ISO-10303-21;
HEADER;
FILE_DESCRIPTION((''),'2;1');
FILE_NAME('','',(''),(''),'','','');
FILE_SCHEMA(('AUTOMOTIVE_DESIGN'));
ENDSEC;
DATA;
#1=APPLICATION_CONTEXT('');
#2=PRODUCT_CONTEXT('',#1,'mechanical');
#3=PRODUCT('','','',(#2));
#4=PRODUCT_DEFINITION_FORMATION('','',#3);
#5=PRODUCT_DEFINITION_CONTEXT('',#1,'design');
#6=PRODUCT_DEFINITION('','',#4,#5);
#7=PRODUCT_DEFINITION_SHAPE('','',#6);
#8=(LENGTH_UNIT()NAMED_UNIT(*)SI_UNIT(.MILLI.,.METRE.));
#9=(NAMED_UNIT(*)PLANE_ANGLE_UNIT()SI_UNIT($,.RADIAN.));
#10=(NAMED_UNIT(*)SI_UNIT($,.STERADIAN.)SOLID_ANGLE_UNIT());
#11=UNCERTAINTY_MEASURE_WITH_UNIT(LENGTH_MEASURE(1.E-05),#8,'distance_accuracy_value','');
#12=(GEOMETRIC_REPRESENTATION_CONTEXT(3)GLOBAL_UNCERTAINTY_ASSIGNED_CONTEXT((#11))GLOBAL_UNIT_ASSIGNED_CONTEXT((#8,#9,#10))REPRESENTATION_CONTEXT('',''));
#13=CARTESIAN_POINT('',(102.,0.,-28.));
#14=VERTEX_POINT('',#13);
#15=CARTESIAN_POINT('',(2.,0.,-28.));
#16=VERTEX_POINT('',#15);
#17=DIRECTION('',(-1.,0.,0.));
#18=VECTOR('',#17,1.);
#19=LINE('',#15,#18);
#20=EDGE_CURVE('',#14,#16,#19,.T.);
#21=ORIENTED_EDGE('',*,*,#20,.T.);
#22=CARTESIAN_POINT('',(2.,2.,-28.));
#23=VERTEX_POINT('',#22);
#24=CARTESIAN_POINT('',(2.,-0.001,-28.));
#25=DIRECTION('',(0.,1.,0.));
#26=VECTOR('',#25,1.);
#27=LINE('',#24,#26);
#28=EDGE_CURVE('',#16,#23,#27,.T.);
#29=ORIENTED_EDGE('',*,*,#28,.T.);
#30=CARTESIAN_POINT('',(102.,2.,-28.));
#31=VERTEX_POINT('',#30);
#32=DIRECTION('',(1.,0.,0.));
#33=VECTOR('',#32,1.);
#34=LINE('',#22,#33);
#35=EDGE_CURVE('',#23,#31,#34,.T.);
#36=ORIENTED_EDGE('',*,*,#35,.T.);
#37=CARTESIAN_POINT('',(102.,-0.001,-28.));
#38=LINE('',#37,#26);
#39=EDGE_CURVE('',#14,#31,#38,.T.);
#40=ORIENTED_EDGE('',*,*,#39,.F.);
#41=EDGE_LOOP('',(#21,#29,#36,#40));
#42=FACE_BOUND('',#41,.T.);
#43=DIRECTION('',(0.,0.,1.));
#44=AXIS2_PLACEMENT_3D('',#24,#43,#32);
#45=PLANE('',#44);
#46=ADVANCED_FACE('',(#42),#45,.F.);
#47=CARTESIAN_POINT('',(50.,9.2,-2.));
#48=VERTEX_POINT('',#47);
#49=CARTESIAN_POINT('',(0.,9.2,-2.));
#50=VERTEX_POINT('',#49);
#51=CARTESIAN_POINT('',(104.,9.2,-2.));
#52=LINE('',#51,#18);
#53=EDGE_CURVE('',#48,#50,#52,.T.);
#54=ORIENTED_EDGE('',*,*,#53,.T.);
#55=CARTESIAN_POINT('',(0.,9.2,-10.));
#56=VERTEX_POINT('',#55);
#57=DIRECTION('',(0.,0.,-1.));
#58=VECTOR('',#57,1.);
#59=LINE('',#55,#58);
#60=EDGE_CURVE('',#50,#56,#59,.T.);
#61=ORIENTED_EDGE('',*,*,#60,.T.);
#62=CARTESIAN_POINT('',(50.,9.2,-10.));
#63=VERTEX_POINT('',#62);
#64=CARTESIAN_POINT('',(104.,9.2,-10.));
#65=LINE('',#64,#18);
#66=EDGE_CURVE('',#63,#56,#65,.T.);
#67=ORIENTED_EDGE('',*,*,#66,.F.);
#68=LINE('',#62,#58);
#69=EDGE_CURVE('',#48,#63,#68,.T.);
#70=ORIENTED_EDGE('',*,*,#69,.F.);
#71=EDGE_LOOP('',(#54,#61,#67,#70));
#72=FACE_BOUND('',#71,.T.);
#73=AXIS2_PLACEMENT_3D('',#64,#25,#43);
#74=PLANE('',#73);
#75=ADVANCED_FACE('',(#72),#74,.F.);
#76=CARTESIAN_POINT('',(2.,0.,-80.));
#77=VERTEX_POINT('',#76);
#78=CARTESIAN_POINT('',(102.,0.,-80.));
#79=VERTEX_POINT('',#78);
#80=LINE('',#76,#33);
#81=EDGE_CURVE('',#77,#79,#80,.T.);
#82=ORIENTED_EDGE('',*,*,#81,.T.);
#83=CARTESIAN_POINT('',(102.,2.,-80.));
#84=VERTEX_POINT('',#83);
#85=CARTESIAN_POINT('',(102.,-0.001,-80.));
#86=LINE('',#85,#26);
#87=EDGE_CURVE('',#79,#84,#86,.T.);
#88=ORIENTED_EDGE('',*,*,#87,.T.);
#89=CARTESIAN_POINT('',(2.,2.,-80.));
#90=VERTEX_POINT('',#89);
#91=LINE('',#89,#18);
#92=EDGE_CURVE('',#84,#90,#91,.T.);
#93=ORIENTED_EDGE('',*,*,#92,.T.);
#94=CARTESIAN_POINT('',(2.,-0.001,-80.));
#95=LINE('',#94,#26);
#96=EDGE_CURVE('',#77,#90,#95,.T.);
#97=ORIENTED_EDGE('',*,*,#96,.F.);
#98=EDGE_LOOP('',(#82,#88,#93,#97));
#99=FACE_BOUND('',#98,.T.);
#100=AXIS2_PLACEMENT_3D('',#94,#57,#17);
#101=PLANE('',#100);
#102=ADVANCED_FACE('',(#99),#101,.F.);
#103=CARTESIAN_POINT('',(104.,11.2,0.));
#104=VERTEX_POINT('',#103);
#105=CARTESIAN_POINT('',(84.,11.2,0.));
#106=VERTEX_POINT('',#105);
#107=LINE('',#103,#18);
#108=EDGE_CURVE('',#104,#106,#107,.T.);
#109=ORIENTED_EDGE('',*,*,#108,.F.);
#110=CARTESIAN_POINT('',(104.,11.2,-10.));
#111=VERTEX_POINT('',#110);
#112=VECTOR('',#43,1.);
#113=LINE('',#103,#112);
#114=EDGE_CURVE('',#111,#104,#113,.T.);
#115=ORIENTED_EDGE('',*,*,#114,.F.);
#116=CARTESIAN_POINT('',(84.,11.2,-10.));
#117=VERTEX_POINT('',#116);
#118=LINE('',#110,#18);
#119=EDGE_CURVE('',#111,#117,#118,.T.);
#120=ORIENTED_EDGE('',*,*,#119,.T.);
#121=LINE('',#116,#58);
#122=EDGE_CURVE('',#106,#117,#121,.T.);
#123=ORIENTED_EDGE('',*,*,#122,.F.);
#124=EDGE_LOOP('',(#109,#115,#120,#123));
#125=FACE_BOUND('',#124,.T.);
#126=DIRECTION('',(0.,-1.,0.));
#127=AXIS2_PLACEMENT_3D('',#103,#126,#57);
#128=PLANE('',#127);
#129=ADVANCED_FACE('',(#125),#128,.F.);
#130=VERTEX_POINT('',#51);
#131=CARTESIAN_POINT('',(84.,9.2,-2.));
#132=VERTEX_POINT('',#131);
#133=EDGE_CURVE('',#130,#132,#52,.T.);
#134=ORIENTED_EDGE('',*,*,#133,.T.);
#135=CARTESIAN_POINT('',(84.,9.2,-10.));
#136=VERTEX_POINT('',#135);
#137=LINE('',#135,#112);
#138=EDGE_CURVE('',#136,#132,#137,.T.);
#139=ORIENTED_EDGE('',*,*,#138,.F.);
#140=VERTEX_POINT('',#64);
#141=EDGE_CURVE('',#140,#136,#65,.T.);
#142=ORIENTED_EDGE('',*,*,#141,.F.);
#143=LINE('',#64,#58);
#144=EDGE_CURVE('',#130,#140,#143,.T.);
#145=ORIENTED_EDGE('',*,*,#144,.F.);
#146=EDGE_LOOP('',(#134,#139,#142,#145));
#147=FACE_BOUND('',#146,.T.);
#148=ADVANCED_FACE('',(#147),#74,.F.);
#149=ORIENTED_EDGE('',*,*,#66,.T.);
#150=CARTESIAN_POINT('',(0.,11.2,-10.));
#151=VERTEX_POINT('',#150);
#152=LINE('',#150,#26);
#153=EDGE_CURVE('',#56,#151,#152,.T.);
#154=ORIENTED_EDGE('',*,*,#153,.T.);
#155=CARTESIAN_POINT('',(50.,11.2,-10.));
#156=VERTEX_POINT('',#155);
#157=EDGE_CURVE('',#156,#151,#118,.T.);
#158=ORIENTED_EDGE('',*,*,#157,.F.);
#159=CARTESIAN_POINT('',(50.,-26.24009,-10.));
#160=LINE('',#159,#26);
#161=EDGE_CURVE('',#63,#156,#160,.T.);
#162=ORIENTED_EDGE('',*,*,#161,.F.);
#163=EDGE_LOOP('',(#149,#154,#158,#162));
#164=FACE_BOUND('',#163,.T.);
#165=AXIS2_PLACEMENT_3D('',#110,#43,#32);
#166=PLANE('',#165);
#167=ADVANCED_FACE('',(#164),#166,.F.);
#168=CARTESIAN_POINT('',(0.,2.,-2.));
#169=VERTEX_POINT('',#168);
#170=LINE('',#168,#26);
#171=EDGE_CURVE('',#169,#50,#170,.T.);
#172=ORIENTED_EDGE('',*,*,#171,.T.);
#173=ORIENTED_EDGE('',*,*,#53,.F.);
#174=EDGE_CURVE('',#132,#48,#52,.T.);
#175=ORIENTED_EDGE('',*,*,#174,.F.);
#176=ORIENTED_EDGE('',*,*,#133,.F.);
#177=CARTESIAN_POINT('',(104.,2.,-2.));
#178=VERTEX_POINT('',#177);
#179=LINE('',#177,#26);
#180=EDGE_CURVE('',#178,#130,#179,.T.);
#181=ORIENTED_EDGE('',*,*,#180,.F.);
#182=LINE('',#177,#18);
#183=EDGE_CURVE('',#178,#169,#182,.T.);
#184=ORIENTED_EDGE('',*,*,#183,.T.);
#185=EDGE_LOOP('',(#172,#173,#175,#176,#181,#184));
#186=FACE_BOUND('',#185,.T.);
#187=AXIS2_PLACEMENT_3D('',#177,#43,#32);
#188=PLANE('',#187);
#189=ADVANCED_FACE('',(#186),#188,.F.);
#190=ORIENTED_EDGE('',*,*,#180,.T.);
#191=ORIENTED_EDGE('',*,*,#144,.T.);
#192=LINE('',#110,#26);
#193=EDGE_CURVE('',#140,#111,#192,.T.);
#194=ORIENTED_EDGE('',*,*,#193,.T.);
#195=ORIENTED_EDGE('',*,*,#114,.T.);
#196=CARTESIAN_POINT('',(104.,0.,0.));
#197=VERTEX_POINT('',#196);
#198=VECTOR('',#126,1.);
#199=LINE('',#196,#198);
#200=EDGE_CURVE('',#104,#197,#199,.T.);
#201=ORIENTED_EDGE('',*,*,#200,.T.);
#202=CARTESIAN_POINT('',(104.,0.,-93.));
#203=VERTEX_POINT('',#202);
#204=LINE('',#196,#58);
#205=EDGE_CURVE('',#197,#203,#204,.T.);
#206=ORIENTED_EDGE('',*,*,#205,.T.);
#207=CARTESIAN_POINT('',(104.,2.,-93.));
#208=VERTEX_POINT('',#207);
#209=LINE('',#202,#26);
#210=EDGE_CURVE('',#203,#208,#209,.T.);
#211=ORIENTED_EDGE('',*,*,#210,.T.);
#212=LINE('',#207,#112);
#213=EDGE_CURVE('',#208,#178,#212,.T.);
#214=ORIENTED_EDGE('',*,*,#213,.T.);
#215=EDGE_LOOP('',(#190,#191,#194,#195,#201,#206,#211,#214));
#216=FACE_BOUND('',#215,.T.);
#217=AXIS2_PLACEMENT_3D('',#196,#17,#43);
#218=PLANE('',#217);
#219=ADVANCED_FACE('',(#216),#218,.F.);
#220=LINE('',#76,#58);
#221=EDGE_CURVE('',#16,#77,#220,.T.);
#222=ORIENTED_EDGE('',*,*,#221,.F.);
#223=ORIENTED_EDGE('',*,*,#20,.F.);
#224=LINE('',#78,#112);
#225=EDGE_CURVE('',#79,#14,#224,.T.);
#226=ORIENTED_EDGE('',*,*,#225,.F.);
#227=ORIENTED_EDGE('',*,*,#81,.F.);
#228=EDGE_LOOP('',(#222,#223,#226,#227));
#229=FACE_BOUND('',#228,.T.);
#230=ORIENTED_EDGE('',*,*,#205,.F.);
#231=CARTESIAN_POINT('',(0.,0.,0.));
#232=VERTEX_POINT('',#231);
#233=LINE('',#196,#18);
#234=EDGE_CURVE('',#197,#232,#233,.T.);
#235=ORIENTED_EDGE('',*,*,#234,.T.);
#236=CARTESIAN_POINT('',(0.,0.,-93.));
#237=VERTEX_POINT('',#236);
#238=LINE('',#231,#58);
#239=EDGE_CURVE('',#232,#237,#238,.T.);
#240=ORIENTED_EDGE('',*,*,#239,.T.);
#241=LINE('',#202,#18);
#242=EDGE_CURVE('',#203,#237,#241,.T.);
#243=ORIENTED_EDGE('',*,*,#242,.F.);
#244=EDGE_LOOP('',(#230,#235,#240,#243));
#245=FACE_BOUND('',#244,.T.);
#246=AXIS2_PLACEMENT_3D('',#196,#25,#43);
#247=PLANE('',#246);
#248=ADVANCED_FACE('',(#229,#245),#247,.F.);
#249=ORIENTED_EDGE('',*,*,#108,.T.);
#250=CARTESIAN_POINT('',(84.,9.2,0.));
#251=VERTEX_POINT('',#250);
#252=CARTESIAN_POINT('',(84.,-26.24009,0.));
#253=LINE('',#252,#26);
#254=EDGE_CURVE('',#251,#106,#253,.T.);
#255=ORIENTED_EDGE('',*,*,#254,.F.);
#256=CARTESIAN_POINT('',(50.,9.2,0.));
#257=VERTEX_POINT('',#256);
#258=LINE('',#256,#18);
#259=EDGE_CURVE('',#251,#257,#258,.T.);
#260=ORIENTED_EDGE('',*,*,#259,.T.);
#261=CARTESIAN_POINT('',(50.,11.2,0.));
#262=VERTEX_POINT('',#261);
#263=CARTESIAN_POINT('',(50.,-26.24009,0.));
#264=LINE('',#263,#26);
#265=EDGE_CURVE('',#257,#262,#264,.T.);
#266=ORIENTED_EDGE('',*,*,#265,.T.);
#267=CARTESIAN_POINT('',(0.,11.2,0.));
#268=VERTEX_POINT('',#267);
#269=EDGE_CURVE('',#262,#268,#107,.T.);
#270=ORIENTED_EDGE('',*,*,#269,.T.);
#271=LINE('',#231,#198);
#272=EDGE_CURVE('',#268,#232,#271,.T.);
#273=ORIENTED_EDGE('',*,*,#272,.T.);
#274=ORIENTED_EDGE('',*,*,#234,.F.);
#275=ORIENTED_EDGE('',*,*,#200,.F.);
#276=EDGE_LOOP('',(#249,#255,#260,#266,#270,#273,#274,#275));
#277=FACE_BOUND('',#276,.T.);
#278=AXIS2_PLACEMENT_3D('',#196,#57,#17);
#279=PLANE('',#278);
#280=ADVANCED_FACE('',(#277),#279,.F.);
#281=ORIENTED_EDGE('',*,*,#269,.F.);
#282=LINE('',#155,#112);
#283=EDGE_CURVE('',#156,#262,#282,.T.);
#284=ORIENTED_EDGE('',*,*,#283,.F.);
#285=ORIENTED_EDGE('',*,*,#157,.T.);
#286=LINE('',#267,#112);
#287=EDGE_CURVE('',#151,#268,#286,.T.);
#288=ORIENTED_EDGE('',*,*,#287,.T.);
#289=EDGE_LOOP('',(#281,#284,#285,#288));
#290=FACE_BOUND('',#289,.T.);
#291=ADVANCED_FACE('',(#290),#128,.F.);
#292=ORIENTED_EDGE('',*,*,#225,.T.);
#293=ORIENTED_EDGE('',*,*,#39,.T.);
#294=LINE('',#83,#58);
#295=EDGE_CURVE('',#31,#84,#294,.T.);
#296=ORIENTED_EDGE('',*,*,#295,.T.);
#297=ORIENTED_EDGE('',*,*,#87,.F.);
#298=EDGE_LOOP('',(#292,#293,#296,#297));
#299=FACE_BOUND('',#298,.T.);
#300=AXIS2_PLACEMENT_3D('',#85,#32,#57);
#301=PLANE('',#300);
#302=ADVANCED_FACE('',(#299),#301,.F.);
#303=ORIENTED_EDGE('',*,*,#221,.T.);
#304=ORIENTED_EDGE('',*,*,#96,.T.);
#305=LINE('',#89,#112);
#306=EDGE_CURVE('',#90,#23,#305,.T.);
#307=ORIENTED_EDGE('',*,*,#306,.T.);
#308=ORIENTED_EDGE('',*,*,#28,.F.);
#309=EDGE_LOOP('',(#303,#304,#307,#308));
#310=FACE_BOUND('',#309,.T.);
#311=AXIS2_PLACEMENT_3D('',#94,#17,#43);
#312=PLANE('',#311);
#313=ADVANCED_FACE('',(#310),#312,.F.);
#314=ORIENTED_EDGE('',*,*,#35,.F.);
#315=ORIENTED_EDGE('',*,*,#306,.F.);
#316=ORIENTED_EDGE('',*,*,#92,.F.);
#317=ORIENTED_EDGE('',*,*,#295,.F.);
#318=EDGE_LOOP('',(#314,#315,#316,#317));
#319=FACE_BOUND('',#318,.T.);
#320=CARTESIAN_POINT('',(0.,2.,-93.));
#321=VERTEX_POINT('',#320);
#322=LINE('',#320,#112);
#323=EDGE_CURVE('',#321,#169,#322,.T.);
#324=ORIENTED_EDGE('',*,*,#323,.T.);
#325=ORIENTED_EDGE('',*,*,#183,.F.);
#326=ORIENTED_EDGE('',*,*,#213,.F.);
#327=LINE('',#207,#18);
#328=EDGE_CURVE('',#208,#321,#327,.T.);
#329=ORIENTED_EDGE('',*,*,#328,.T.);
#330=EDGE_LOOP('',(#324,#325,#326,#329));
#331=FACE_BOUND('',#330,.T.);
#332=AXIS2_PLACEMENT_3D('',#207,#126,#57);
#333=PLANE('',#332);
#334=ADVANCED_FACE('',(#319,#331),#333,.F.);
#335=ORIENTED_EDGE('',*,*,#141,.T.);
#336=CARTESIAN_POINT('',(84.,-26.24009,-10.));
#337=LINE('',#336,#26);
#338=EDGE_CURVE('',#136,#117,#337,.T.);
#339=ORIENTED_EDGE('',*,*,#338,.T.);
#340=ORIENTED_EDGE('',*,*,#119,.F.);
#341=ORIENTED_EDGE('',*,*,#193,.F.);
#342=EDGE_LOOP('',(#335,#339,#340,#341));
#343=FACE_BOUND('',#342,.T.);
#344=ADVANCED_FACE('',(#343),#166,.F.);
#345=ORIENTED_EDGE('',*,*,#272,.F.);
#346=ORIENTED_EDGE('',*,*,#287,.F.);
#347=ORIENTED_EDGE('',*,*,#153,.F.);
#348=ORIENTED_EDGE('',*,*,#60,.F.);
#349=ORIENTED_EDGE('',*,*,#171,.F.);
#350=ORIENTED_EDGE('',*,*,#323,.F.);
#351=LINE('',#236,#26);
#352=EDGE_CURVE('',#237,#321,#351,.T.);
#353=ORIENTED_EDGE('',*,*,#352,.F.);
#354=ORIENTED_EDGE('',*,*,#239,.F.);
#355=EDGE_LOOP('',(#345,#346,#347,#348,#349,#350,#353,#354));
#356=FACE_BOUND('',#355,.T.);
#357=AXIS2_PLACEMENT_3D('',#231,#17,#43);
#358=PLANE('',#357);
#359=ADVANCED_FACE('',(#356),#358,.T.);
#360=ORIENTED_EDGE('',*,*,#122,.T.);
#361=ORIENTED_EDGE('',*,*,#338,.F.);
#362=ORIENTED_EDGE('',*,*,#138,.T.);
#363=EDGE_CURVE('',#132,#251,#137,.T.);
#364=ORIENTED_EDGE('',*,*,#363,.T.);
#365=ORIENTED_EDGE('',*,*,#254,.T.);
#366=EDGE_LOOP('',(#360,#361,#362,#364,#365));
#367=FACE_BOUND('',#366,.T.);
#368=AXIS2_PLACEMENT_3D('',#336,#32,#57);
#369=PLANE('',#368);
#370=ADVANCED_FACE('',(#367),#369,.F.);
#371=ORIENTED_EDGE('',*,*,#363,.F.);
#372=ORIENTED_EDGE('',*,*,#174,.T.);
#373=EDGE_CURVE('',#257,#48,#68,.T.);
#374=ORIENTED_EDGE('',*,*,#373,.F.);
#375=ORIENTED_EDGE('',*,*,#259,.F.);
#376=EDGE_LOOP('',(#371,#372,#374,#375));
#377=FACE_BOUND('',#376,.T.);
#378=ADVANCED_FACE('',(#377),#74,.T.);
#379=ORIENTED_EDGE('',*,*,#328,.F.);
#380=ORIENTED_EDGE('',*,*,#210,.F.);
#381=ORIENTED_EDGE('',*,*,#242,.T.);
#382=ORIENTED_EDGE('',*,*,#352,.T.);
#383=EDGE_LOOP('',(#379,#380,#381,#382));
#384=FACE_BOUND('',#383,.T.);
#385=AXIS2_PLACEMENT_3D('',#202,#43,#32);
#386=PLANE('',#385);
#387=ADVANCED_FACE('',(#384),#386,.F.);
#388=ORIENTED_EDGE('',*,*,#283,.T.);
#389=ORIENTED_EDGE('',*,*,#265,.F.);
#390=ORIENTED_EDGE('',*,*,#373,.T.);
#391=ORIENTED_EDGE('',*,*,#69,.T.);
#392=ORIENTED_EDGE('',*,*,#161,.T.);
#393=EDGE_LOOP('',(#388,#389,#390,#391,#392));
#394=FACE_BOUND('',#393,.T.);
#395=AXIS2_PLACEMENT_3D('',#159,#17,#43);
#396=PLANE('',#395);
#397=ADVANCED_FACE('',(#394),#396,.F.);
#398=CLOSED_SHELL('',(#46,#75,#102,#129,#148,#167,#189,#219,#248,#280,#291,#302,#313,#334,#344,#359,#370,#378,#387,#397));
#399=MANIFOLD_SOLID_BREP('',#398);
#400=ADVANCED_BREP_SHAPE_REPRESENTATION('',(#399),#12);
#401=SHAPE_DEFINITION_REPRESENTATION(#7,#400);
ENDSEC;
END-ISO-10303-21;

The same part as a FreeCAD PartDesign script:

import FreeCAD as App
import Part
import Sketcher
Q = App.Units.Quantity

doc = App.newDocument("Part")
body = doc.addObject("PartDesign::Body", "Body")

sketch1 = doc.addObject("Sketcher::SketchObject", "Sketch")
body.addObject(sketch1)
sketch1.AttachmentSupport = (doc.YZ_Plane, [""])
sketch1.MapMode = "FlatFace"
sketch1.addGeometry([
    Part.LineSegment(App.Vector(0, 0, 0), App.Vector(0, -93, 0)),
    Part.LineSegment(App.Vector(0, -93, 0), App.Vector(2, -93, 0)),
    Part.LineSegment(App.Vector(2, -93, 0), App.Vector(2, -2, 0)),
    Part.LineSegment(App.Vector(2, -2, 0), App.Vector(9.2, -2, 0)),
    Part.LineSegment(App.Vector(9.2, -2, 0), App.Vector(9.2, -10, 0)),
    Part.LineSegment(App.Vector(9.2, -10, 0), App.Vector(11.2, -10, 0)),
    Part.LineSegment(App.Vector(11.2, -10, 0), App.Vector(11.2, 0, 0)),
    Part.LineSegment(App.Vector(11.2, 0, 0), App.Vector(0, 0, 0)),
], False)
sketch1.addConstraint([
    Sketcher.Constraint("Coincident", 0, 2, 1, 1),
    Sketcher.Constraint("Coincident", 1, 2, 2, 1),
    Sketcher.Constraint("Coincident", 2, 2, 3, 1),
    Sketcher.Constraint("Coincident", 3, 2, 4, 1),
    Sketcher.Constraint("Coincident", 4, 2, 5, 1),
    Sketcher.Constraint("Coincident", 5, 2, 6, 1),
    Sketcher.Constraint("Coincident", 6, 2, 7, 1),
    Sketcher.Constraint("Coincident", 7, 2, 0, 1),
    Sketcher.Constraint("Vertical", 0),
    Sketcher.Constraint("Horizontal", 1),
    Sketcher.Constraint("Vertical", 2),
    Sketcher.Constraint("Horizontal", 3),
    Sketcher.Constraint("Vertical", 4),
    Sketcher.Constraint("Horizontal", 5),
    Sketcher.Constraint("Vertical", 6),
    Sketcher.Constraint("Horizontal", 7),
    Sketcher.Constraint("Coincident", 7, 2, -1, 1),
    Sketcher.Constraint("Equal", 1, 5),
    Sketcher.Constraint("DistanceX", 1, 1, 1, 2, Q("2 mm")),
    Sketcher.Constraint("DistanceY", 0, 2, 0, 1, Q("93 mm")),
    Sketcher.Constraint("DistanceY", 2, 1, 2, 2, Q("91 mm")),
    Sketcher.Constraint("DistanceY", 4, 2, 4, 1, Q("8 mm")),
    Sketcher.Constraint("DistanceX", 3, 1, 3, 2, Q("7.2 mm")),
])
pad1 = doc.addObject("PartDesign::Pad", "Pad")
body.addObject(pad1)
pad1.Profile = sketch1
pad1.Length = 104

sketch2 = doc.addObject("Sketcher::SketchObject", "Sketch001")
body.addObject(sketch2)
sketch2.AttachmentSupport = (doc.XZ_Plane, [""])
sketch2.MapMode = "FlatFace"
sketch2.AttachmentOffset = App.Placement(App.Vector(0, 0, -11.2), App.Rotation())
sketch2.addGeometry([
    Part.LineSegment(App.Vector(50, -10, 0), App.Vector(50, 0, 0)),
    Part.LineSegment(App.Vector(50, 0, 0), App.Vector(84, 0, 0)),
    Part.LineSegment(App.Vector(84, 0, 0), App.Vector(84, -10, 0)),
    Part.LineSegment(App.Vector(84, -10, 0), App.Vector(50, -10, 0)),
], False)
sketch2.addConstraint([
    Sketcher.Constraint("Coincident", 0, 2, 1, 1),
    Sketcher.Constraint("Coincident", 1, 2, 2, 1),
    Sketcher.Constraint("Coincident", 2, 2, 3, 1),
    Sketcher.Constraint("Coincident", 3, 2, 0, 1),
    Sketcher.Constraint("Vertical", 0),
    Sketcher.Constraint("Horizontal", 1),
    Sketcher.Constraint("Vertical", 2),
    Sketcher.Constraint("Horizontal", 3),
    Sketcher.Constraint("PointOnObject", 0, 2, -1),
    Sketcher.Constraint("DistanceX", 1, 1, 1, 2, Q("34 mm")),
    Sketcher.Constraint("DistanceY", 0, 1, 0, 2, Q("10 mm")),
    Sketcher.Constraint("DistanceX", -1, 1, 0, 2, Q("50 mm")),
])
pocket1 = doc.addObject("PartDesign::Pocket", "Pocket")
body.addObject(pocket1)
pocket1.Profile = sketch2
pocket1.Length = 2
pocket1.Reversed = True

sketch3 = doc.addObject("Sketcher::SketchObject", "Sketch002")
body.addObject(sketch3)
sketch3.AttachmentSupport = (doc.XZ_Plane, [""])
sketch3.MapMode = "FlatFace"
sketch3.AttachmentOffset = App.Placement(App.Vector(0, 0, -2), App.Rotation())
sketch3.addGeometry([
    Part.LineSegment(App.Vector(2, -80, 0), App.Vector(2, -28, 0)),
    Part.LineSegment(App.Vector(2, -28, 0), App.Vector(102, -28, 0)),
    Part.LineSegment(App.Vector(102, -28, 0), App.Vector(102, -80, 0)),
    Part.LineSegment(App.Vector(102, -80, 0), App.Vector(2, -80, 0)),
], False)
sketch3.addConstraint([
    Sketcher.Constraint("Coincident", 0, 2, 1, 1),
    Sketcher.Constraint("Coincident", 1, 2, 2, 1),
    Sketcher.Constraint("Coincident", 2, 2, 3, 1),
    Sketcher.Constraint("Coincident", 3, 2, 0, 1),
    Sketcher.Constraint("Vertical", 0),
    Sketcher.Constraint("Horizontal", 1),
    Sketcher.Constraint("Vertical", 2),
    Sketcher.Constraint("Horizontal", 3),
    Sketcher.Constraint("DistanceX", 1, 1, 1, 2, Q("100 mm")),
    Sketcher.Constraint("DistanceY", 0, 1, 0, 2, Q("52 mm")),
    Sketcher.Constraint("DistanceX", -1, 1, 0, 2, Q("2 mm")),
    Sketcher.Constraint("DistanceY", 0, 2, -1, 1, Q("28 mm")),
])
pocket2 = doc.addObject("PartDesign::Pocket", "Pocket001")
body.addObject(pocket2)
pocket2.Profile = sketch3
pocket2.Type = "UpToFirst"
pocket2.Reversed = True

doc.recompute()
